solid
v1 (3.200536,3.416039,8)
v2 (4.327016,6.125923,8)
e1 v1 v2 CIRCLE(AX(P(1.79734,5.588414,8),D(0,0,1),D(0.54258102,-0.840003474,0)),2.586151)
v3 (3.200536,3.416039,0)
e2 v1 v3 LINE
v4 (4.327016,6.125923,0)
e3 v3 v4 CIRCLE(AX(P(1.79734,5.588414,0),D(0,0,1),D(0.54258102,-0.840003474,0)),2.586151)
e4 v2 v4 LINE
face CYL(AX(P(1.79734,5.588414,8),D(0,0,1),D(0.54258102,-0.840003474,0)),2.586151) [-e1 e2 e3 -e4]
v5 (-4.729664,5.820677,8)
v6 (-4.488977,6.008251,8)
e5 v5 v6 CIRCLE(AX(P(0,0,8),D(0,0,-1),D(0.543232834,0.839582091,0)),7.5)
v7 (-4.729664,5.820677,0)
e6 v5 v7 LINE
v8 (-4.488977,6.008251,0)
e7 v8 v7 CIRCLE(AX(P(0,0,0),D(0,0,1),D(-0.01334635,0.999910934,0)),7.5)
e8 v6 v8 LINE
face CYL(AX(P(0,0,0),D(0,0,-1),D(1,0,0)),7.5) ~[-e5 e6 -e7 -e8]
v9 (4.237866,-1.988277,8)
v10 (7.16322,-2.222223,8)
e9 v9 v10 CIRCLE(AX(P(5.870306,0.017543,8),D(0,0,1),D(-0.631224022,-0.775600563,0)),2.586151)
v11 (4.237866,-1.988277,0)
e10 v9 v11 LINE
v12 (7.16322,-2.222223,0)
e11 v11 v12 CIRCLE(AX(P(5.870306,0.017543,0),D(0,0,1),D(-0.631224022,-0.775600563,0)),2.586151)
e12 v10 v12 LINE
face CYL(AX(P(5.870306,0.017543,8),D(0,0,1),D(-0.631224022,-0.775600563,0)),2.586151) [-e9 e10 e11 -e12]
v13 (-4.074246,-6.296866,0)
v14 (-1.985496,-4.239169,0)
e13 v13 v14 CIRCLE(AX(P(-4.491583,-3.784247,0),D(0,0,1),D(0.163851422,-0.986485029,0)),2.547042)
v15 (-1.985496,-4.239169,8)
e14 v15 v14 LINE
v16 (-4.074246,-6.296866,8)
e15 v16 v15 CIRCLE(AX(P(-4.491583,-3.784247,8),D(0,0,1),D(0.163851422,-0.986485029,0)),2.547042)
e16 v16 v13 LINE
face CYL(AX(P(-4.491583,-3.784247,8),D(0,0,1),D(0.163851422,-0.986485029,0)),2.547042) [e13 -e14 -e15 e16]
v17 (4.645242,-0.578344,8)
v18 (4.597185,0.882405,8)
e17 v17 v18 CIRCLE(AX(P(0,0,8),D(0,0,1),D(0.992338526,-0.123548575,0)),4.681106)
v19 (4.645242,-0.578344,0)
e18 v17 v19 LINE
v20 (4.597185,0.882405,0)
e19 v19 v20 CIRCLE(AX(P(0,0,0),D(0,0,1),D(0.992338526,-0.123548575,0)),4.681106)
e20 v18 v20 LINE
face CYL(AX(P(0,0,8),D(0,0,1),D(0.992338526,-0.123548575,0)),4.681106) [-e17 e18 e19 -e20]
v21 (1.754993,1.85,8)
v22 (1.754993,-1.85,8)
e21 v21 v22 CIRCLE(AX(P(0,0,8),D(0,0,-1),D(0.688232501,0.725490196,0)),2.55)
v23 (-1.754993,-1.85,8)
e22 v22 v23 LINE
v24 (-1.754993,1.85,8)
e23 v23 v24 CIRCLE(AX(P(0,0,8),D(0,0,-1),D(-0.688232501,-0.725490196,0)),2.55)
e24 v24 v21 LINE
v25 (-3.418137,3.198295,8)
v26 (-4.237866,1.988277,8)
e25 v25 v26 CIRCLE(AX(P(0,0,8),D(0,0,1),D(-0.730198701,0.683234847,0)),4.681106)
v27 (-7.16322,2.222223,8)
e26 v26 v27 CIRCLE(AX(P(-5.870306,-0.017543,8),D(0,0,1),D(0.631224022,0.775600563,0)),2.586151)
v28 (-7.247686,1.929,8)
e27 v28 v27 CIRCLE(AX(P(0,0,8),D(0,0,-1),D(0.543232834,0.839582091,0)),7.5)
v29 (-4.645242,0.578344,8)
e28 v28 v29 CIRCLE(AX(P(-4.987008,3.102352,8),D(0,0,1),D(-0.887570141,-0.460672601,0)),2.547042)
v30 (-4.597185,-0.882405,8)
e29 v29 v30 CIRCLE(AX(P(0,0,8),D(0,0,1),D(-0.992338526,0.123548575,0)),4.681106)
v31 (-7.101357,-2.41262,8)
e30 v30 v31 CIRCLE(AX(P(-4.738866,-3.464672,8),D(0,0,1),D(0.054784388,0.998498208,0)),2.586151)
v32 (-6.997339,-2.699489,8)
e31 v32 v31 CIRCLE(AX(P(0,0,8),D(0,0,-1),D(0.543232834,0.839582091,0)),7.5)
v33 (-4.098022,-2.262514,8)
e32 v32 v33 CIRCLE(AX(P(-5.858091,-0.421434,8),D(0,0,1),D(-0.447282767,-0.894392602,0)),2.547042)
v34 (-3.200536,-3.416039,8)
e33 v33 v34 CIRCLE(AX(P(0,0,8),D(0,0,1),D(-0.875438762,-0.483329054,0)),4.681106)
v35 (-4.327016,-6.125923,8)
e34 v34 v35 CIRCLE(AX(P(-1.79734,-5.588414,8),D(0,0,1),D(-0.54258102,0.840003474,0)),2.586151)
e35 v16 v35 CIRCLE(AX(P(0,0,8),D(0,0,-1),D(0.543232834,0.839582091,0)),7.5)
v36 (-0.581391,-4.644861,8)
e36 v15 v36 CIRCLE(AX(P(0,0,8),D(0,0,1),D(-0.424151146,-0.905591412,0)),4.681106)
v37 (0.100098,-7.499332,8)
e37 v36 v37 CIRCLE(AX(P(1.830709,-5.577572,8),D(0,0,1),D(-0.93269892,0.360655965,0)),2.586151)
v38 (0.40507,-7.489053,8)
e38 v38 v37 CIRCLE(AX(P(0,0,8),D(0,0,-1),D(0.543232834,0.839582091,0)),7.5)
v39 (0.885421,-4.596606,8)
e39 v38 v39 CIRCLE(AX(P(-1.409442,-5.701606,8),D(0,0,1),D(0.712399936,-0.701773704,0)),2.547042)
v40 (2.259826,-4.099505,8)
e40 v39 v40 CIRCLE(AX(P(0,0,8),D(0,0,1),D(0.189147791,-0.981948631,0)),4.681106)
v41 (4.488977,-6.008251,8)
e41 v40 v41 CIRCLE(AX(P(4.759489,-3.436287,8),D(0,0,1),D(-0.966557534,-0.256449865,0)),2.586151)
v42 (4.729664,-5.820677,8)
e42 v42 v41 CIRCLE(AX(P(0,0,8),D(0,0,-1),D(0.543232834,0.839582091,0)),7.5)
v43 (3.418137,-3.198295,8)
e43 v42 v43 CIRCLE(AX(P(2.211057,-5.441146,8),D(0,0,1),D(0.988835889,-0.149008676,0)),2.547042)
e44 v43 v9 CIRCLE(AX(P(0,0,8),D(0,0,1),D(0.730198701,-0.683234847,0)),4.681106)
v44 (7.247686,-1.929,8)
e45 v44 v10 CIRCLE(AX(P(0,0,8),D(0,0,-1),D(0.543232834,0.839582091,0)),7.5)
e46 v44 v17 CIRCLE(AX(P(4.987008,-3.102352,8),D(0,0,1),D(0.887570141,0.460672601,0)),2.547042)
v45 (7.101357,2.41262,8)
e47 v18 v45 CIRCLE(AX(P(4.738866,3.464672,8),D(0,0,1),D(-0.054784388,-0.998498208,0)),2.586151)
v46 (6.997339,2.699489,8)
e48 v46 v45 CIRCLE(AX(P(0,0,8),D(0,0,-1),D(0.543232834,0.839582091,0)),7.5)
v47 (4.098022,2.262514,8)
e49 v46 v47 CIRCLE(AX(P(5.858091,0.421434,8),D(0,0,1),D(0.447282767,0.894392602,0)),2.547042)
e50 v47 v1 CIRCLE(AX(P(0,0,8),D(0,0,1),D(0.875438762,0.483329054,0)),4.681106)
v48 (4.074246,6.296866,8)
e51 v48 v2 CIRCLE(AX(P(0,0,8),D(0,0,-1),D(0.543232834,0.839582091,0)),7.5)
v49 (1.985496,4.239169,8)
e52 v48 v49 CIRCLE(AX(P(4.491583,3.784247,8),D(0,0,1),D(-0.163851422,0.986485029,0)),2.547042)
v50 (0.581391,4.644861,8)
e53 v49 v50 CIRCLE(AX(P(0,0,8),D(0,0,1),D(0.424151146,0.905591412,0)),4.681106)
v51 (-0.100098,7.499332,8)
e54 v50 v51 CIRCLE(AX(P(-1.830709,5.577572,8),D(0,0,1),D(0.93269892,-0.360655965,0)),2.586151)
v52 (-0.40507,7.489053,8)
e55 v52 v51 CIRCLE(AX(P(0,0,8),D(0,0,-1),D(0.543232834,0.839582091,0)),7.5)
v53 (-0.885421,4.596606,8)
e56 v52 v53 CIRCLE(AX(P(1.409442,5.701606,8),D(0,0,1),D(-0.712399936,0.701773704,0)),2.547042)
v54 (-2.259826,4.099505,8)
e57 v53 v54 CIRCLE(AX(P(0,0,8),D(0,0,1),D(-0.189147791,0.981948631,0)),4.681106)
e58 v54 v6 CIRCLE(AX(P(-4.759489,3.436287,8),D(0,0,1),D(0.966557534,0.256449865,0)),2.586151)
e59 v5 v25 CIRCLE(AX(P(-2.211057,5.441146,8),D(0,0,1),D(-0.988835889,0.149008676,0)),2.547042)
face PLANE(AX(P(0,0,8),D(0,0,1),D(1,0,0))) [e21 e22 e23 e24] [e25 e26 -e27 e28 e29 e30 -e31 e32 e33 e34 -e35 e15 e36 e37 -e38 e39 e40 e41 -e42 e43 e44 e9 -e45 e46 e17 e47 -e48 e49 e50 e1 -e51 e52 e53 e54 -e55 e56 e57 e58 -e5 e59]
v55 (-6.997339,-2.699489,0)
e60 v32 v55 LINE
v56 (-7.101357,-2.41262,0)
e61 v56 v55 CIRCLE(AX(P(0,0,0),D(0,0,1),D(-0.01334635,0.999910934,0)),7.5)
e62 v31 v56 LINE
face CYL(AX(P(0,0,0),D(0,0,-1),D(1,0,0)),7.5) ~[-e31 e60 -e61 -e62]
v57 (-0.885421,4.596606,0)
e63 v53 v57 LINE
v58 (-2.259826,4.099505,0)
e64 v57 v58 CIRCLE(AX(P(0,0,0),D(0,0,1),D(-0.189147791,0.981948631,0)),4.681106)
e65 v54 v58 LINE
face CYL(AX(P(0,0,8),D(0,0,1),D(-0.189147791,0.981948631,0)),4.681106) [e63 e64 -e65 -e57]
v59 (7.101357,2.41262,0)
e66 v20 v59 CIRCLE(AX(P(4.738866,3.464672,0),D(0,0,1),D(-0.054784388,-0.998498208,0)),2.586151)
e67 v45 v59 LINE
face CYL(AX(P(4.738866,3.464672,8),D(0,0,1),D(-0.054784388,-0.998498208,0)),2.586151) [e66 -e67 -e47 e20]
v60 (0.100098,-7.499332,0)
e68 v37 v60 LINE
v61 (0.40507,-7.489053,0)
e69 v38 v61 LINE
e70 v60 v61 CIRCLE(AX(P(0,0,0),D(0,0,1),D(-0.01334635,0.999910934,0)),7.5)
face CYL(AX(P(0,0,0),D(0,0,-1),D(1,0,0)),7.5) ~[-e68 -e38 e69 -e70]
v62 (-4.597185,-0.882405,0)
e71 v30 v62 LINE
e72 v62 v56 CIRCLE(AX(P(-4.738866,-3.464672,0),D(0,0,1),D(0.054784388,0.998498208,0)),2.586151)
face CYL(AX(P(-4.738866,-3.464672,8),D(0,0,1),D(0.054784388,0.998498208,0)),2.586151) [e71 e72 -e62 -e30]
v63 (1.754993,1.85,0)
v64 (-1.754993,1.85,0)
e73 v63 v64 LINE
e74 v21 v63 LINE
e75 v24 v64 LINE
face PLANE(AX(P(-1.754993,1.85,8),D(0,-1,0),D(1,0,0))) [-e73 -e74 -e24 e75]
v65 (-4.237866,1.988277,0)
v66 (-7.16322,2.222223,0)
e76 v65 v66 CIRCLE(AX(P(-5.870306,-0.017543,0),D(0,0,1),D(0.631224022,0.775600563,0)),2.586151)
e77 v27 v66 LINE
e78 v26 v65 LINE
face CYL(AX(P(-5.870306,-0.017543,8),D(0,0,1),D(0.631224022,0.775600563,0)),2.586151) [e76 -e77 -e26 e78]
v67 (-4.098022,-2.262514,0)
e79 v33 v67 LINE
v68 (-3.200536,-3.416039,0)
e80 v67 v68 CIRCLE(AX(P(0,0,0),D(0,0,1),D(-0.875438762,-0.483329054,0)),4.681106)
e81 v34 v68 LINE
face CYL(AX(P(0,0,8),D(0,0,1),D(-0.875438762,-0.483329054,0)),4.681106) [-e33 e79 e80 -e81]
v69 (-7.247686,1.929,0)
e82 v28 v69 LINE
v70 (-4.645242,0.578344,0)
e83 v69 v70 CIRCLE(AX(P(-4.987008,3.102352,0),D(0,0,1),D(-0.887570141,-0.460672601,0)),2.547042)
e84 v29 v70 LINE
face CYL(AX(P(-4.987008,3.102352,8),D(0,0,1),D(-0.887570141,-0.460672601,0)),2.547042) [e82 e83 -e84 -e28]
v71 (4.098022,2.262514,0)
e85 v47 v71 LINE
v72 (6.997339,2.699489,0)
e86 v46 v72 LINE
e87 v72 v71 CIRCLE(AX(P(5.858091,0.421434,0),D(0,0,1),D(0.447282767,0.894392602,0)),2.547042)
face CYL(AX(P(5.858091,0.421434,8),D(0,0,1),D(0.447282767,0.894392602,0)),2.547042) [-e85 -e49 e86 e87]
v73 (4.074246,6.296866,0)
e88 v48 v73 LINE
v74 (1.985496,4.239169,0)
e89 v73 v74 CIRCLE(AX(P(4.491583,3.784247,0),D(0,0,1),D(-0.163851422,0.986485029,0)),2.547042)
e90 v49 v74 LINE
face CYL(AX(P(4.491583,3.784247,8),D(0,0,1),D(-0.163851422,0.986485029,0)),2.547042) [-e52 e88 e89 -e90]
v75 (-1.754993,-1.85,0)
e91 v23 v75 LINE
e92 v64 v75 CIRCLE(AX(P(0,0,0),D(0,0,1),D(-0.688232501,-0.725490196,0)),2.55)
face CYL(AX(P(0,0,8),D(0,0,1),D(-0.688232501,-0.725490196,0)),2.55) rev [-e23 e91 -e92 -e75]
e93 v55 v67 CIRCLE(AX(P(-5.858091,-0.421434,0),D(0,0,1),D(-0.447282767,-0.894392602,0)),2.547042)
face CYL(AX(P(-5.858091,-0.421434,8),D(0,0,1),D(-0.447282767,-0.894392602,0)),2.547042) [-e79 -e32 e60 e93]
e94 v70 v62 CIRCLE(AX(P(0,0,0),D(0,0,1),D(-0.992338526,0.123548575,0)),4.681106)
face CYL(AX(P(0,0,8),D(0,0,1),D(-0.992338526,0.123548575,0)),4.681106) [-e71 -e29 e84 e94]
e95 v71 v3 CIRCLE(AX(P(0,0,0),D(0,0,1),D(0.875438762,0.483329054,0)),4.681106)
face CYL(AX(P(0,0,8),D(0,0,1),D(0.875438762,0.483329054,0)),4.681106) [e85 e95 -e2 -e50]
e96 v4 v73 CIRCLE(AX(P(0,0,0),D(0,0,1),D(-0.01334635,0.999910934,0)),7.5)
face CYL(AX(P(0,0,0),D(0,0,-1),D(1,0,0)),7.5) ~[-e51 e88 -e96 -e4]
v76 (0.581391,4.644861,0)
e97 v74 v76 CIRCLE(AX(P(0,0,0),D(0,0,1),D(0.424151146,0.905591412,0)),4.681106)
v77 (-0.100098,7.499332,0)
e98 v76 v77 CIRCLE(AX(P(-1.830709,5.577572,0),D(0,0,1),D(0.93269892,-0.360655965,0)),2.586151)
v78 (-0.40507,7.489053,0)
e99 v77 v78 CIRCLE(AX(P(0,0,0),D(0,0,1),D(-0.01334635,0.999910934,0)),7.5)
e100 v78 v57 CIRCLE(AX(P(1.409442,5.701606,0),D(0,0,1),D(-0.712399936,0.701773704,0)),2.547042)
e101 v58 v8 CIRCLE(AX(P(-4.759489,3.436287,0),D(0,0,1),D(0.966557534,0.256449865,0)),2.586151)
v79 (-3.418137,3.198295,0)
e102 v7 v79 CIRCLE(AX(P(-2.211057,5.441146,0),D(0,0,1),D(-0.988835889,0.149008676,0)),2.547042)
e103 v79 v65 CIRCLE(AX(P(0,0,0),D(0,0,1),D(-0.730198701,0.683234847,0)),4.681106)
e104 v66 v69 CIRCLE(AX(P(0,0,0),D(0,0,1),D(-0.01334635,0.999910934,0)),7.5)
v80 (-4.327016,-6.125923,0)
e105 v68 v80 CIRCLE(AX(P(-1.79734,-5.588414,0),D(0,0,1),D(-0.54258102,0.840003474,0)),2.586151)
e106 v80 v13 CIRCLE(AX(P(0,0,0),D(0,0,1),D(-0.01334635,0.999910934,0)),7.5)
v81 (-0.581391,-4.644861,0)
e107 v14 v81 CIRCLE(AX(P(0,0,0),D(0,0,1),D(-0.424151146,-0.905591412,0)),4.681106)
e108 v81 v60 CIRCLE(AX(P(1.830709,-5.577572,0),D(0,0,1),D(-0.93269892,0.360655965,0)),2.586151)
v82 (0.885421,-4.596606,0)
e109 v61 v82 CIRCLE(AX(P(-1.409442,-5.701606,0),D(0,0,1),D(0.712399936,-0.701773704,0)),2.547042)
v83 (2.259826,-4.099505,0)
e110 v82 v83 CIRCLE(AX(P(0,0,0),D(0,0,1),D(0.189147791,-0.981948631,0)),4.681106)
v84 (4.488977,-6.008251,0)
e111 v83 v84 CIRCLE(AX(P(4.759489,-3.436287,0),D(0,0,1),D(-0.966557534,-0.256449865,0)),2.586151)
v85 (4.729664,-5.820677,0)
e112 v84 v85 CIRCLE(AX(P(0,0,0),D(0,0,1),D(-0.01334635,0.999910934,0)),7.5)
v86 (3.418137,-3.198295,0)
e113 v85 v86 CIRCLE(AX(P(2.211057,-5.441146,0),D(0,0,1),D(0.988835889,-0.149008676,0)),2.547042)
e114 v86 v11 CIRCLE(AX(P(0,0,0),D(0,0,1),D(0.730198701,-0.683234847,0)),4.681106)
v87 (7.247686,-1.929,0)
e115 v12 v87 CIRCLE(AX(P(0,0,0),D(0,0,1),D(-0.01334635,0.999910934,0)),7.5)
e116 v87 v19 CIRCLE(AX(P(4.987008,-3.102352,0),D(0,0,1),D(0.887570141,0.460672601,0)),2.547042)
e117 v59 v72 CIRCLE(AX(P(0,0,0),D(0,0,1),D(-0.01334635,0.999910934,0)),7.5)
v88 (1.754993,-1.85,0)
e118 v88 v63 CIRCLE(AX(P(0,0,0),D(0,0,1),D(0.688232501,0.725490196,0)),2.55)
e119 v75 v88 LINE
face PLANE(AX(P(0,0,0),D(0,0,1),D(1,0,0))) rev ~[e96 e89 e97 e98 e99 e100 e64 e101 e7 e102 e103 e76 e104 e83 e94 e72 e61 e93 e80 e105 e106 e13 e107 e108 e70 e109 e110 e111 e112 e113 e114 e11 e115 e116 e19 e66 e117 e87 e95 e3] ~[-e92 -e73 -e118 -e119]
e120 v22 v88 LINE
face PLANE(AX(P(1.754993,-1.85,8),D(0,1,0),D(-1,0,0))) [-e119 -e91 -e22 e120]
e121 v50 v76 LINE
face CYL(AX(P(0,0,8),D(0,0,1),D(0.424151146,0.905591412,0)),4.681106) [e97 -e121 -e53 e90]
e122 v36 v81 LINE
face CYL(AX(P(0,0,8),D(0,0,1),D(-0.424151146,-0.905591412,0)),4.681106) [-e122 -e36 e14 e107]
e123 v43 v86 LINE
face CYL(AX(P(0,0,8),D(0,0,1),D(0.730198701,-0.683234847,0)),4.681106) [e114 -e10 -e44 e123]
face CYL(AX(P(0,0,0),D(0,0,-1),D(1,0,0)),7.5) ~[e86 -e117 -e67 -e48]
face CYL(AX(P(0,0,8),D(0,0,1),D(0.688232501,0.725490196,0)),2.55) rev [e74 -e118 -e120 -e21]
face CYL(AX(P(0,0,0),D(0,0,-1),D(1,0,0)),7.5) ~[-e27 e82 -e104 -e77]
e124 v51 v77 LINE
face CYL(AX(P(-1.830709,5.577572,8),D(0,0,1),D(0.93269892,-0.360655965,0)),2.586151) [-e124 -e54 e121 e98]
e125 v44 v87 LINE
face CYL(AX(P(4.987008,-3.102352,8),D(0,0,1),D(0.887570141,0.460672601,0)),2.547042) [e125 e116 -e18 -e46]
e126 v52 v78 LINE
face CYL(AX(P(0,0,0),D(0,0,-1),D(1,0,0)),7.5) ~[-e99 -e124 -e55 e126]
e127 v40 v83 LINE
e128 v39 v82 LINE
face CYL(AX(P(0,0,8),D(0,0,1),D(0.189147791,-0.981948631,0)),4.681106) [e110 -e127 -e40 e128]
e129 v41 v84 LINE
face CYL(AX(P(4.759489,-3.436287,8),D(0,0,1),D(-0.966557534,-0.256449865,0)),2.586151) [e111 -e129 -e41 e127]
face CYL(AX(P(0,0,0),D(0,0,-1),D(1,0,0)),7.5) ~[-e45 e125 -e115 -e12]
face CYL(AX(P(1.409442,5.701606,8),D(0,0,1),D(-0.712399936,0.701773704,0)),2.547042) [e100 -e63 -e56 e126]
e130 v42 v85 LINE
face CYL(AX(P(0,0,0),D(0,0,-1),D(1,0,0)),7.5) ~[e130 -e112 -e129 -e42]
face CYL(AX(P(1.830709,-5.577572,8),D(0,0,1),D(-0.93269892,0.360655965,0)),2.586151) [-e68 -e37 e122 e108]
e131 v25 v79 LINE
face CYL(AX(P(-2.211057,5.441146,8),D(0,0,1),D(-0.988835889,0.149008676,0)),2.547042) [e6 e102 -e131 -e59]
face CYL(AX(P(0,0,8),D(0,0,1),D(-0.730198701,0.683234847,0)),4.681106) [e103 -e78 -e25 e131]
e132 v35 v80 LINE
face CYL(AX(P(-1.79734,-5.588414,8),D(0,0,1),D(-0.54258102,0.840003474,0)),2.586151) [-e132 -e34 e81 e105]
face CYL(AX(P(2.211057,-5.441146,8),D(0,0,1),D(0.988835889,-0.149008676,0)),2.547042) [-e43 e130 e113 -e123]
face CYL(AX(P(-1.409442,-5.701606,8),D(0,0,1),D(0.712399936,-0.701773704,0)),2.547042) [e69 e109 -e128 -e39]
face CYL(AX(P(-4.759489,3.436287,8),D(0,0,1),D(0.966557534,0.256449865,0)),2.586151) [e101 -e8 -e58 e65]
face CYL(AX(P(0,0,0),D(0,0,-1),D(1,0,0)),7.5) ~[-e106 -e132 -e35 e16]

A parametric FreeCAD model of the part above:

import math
import FreeCAD as App
import Part
import Sketcher

V = App.Vector

doc = App.newDocument("Part")
params = doc.addObject("Spreadsheet::Sheet", "Params")
for row, (alias, value) in enumerate([
    ("sketch1_diameter", "15 mm"),
    ("pad1_length", "8 mm"),
    ("sketch2_radius", "7.5 mm"),
    ("sketch3_radius", "2.55 mm"),
], start=1):
    params.set(f"A{row}", alias)
    params.set(f"B{row}", "=" + value)
    params.setAlias(f"B{row}", alias)

body = doc.addObject("PartDesign::Body", "Body")

sketch1 = doc.addObject("Sketcher::SketchObject", "Sketch")
body.addObject(sketch1)
sketch1.AttachmentSupport = (doc.XY_Plane, [""])
sketch1.MapMode = "FlatFace"
sketch1.addGeometry(Part.Circle(V(0, 0, 0), V(0, 0, 1), 7.5), False)
sketch1.addConstraint([
    Sketcher.Constraint("Coincident", 0, 3, -1, 1),
    Sketcher.Constraint("Diameter", 0, 15.0),
])
sketch1.setExpression("Constraints[1]", "Params.sketch1_diameter")
pad1 = doc.addObject("PartDesign::Pad", "Pad")
body.addObject(pad1)
pad1.Profile = sketch1
pad1.setExpression("Length", "Params.pad1_length")

sketch2 = doc.addObject("Sketcher::SketchObject", "Sketch001")
body.addObject(sketch2)
sketch2.AttachmentSupport = (doc.XY_Plane, [""])
sketch2.MapMode = "FlatFace"
sketch2.AttachmentOffset = App.Placement(V(0, 0, 8), App.Rotation())
sketch2.addGeometry([
    Part.ArcOfCircle(Part.Circle(V(0, 0, 0), V(0, 0, 1), 4.681106), math.radians(64.903054), math.radians(82.865467)),
    Part.ArcOfCircle(Part.Circle(V(4.491583, 3.784247, 0), V(0, 0, 1), 2.547042), math.radians(99.430518), math.radians(169.711303)),
    Part.ArcOfCircle(Part.Circle(V(0, 0, 0), V(0, 0, 1), 7.5), math.radians(57.096016), math.radians(90.764712)),
    Part.ArcOfCircle(Part.Circle(V(-1.830709, 5.577572, 0), V(0, 0, 1), 2.586151), math.radians(-21.140487), math.radians(47.995869)),
], False)
sketch2.addConstraint([
    Sketcher.Constraint("Coincident", 0, 1, 1, 2),
    Sketcher.Constraint("Coincident", 1, 1, 2, 1),
    Sketcher.Constraint("Coincident", 2, 2, 3, 2),
    Sketcher.Constraint("Coincident", 3, 1, 0, 2),
    Sketcher.Constraint("Coincident", 0, 3, -1, 1),
    Sketcher.Constraint("Coincident", 2, 3, -1, 1),
    Sketcher.Constraint("Radius", 2, 7.5),
    Sketcher.Constraint("Radius", 1, 2.547042),
    Sketcher.Constraint("Radius", 3, 2.586151),
    Sketcher.Constraint("Radius", 0, 4.681106),
    Sketcher.Constraint("DistanceX", 3, 3, 3, 1, 2.4121),
    Sketcher.Constraint("DistanceX", 3, 3, -1, 1, 1.830709),
    Sketcher.Constraint("DistanceY", -1, 1, 0, 1, 4.239169),
    Sketcher.Constraint("DistanceX", 3, 3, 1, 3, 6.322292),
])
sketch2.setExpression("Constraints[6]", "Params.sketch2_radius")
pocket1 = doc.addObject("PartDesign::Pocket", "Pocket")
body.addObject(pocket1)
pocket1.Profile = sketch2
pocket1.Type = "ThroughAll"
doc.recompute()

polarpattern = doc.addObject("PartDesign::PolarPattern", "PolarPattern")
body.addObject(polarpattern)
polarpattern.Originals = [pocket1]
polarpattern.Axis = (doc.Z_Axis, [""])
polarpattern.Angle = 360
polarpattern.Occurrences = 10
body.Tip = polarpattern

sketch3 = doc.addObject("Sketcher::SketchObject", "Sketch002")
body.addObject(sketch3)
sketch3.AttachmentSupport = (doc.XY_Plane, [""])
sketch3.MapMode = "FlatFace"
sketch3.AttachmentOffset = App.Placement(V(0, 0, 8), App.Rotation())
sketch3.addGeometry([
    Part.LineSegment(V(-1.754993, -1.85, 0), V(1.754993, -1.85, 0)),
    Part.ArcOfCircle(Part.Circle(V(0, 0, 0), V(0, 0, 1), 2.55), math.radians(-46.509642), math.radians(46.509642)),
    Part.LineSegment(V(1.754993, 1.85, 0), V(-1.754993, 1.85, 0)),
    Part.ArcOfCircle(Part.Circle(V(0, 0, 0), V(0, 0, 1), 2.55), math.radians(133.490358), math.radians(226.509642)),
], False)
sketch3.addConstraint([
    Sketcher.Constraint("Coincident", 0, 2, 1, 1),
    Sketcher.Constraint("Coincident", 1, 2, 2, 1),
    Sketcher.Constraint("Coincident", 2, 2, 3, 1),
    Sketcher.Constraint("Coincident", 3, 2, 0, 1),
    Sketcher.Constraint("Horizontal", 0),
    Sketcher.Constraint("Horizontal", 2),
    Sketcher.Constraint("Coincident", 1, 3, -1, 1),
    Sketcher.Constraint("Coincident", 3, 3, -1, 1),
    Sketcher.Constraint("Equal", 1, 3),
    Sketcher.Constraint("Vertical", 0, 2, 1, 2),
    Sketcher.Constraint("Radius", 1, 2.55),
    Sketcher.Constraint("DistanceY", 0, 2, 1, 2, 3.7),
])
sketch3.setExpression("Constraints[10]", "Params.sketch3_radius")
pocket2 = doc.addObject("PartDesign::Pocket", "Pocket001")
body.addObject(pocket2)
pocket2.Profile = sketch3
pocket2.Type = "UpToFirst"

doc.recompute()
